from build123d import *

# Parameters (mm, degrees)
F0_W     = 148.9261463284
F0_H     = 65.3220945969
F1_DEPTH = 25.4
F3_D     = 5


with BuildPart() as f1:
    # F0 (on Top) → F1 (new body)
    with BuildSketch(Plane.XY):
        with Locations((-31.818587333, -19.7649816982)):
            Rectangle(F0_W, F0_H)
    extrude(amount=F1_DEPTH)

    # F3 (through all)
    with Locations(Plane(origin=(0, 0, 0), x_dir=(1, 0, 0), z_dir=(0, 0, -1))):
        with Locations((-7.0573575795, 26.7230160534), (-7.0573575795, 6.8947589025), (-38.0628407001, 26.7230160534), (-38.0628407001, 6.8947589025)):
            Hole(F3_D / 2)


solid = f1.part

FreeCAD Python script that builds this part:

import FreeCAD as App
import Part
import Sketcher
from FreeCAD import Vector
Q = App.Units.Quantity

doc = App.newDocument("Part")
body = doc.addObject("PartDesign::Body", "Body")

sketch1 = body.newObject("Sketcher::SketchObject", "Sketch")
sketch1.AttachmentSupport = (doc.getObject("XY_Plane"), [""])
sketch1.MapMode = "FlatFace"
sketch1.addGeometry([
    Part.LineSegment(Vector(-106, 13, 0), Vector(-106, -52, 0)),
    Part.LineSegment(Vector(-106, -52, 0), Vector(43, -52, 0)),
    Part.LineSegment(Vector(43, -52, 0), Vector(43, 13, 0)),
    Part.LineSegment(Vector(43, 13, 0), Vector(-106, 13, 0)),
], False)
sketch1.addConstraint([
    Sketcher.Constraint("Coincident", 0, 2, 1, 1),
    Sketcher.Constraint("Coincident", 1, 2, 2, 1),
    Sketcher.Constraint("Coincident", 2, 2, 3, 1),
    Sketcher.Constraint("Coincident", 3, 2, 0, 1),
    Sketcher.Constraint("Vertical", 0),
    Sketcher.Constraint("Horizontal", 1),
    Sketcher.Constraint("Vertical", 2),
    Sketcher.Constraint("Horizontal", 3),
    Sketcher.Constraint("DistanceX", 1, 1, 1, 2, Q("148.926146 mm")),
    Sketcher.Constraint("DistanceY", 0, 2, 0, 1, Q("65.322095 mm")),
    Sketcher.Constraint("DistanceX", 0, 2, -1, 1, Q("106.28166 mm")),
    Sketcher.Constraint("DistanceY", 0, 2, -1, 1, Q("52.426029 mm")),
])
pad1 = body.newObject("PartDesign::Pad", "Pad")
pad1.Profile = sketch1
pad1.Length = 25.4

sketch2 = body.newObject("Sketcher::SketchObject", "Sketch001")
sketch2.AttachmentSupport = (doc.getObject("XY_Plane"), [""])
sketch2.MapMode = "FlatFace"
sketch2.addGeometry([
    Part.Circle(Vector(-7.1, -26.7, 0), Vector(0, 0, 1), 2.5),
    Part.Circle(Vector(-7.1, -6.9, 0), Vector(0, 0, 1), 2.5),
    Part.Circle(Vector(-38.1, -26.7, 0), Vector(0, 0, 1), 2.5),
    Part.Circle(Vector(-38.1, -6.9, 0), Vector(0, 0, 1), 2.5),
], False)
sketch2.addConstraint([
    Sketcher.Constraint("Equal", 0, 1),
    Sketcher.Constraint("Equal", 1, 2),
    Sketcher.Constraint("Equal", 2, 3),
    Sketcher.Constraint("Horizontal", 0, 3, 2, 3),
    Sketcher.Constraint("Horizontal", 1, 3, 3, 3),
    Sketcher.Constraint("Vertical", 0, 3, 1, 3),
    Sketcher.Constraint("Vertical", 2, 3, 3, 3),
    Sketcher.Constraint("Diameter", 0, Q("5 mm")),
    Sketcher.Constraint("DistanceY", 1, 3, -1, 1, Q("6.894759 mm")),
    Sketcher.Constraint("DistanceX", 2, 3, -1, 1, Q("38.062841 mm")),
    Sketcher.Constraint("DistanceX", 0, 3, -1, 1, Q("7.057358 mm")),
    Sketcher.Constraint("DistanceY", 0, 3, -1, 1, Q("26.723016 mm")),
])
doc.recompute()
hole = body.newObject("PartDesign::Hole", "Hole")
hole.Profile = sketch2
hole.ThreadType = "None"
hole.Diameter = 5
hole.DepthType = "ThroughAll"
hole.Reversed = True

doc.recompute()
